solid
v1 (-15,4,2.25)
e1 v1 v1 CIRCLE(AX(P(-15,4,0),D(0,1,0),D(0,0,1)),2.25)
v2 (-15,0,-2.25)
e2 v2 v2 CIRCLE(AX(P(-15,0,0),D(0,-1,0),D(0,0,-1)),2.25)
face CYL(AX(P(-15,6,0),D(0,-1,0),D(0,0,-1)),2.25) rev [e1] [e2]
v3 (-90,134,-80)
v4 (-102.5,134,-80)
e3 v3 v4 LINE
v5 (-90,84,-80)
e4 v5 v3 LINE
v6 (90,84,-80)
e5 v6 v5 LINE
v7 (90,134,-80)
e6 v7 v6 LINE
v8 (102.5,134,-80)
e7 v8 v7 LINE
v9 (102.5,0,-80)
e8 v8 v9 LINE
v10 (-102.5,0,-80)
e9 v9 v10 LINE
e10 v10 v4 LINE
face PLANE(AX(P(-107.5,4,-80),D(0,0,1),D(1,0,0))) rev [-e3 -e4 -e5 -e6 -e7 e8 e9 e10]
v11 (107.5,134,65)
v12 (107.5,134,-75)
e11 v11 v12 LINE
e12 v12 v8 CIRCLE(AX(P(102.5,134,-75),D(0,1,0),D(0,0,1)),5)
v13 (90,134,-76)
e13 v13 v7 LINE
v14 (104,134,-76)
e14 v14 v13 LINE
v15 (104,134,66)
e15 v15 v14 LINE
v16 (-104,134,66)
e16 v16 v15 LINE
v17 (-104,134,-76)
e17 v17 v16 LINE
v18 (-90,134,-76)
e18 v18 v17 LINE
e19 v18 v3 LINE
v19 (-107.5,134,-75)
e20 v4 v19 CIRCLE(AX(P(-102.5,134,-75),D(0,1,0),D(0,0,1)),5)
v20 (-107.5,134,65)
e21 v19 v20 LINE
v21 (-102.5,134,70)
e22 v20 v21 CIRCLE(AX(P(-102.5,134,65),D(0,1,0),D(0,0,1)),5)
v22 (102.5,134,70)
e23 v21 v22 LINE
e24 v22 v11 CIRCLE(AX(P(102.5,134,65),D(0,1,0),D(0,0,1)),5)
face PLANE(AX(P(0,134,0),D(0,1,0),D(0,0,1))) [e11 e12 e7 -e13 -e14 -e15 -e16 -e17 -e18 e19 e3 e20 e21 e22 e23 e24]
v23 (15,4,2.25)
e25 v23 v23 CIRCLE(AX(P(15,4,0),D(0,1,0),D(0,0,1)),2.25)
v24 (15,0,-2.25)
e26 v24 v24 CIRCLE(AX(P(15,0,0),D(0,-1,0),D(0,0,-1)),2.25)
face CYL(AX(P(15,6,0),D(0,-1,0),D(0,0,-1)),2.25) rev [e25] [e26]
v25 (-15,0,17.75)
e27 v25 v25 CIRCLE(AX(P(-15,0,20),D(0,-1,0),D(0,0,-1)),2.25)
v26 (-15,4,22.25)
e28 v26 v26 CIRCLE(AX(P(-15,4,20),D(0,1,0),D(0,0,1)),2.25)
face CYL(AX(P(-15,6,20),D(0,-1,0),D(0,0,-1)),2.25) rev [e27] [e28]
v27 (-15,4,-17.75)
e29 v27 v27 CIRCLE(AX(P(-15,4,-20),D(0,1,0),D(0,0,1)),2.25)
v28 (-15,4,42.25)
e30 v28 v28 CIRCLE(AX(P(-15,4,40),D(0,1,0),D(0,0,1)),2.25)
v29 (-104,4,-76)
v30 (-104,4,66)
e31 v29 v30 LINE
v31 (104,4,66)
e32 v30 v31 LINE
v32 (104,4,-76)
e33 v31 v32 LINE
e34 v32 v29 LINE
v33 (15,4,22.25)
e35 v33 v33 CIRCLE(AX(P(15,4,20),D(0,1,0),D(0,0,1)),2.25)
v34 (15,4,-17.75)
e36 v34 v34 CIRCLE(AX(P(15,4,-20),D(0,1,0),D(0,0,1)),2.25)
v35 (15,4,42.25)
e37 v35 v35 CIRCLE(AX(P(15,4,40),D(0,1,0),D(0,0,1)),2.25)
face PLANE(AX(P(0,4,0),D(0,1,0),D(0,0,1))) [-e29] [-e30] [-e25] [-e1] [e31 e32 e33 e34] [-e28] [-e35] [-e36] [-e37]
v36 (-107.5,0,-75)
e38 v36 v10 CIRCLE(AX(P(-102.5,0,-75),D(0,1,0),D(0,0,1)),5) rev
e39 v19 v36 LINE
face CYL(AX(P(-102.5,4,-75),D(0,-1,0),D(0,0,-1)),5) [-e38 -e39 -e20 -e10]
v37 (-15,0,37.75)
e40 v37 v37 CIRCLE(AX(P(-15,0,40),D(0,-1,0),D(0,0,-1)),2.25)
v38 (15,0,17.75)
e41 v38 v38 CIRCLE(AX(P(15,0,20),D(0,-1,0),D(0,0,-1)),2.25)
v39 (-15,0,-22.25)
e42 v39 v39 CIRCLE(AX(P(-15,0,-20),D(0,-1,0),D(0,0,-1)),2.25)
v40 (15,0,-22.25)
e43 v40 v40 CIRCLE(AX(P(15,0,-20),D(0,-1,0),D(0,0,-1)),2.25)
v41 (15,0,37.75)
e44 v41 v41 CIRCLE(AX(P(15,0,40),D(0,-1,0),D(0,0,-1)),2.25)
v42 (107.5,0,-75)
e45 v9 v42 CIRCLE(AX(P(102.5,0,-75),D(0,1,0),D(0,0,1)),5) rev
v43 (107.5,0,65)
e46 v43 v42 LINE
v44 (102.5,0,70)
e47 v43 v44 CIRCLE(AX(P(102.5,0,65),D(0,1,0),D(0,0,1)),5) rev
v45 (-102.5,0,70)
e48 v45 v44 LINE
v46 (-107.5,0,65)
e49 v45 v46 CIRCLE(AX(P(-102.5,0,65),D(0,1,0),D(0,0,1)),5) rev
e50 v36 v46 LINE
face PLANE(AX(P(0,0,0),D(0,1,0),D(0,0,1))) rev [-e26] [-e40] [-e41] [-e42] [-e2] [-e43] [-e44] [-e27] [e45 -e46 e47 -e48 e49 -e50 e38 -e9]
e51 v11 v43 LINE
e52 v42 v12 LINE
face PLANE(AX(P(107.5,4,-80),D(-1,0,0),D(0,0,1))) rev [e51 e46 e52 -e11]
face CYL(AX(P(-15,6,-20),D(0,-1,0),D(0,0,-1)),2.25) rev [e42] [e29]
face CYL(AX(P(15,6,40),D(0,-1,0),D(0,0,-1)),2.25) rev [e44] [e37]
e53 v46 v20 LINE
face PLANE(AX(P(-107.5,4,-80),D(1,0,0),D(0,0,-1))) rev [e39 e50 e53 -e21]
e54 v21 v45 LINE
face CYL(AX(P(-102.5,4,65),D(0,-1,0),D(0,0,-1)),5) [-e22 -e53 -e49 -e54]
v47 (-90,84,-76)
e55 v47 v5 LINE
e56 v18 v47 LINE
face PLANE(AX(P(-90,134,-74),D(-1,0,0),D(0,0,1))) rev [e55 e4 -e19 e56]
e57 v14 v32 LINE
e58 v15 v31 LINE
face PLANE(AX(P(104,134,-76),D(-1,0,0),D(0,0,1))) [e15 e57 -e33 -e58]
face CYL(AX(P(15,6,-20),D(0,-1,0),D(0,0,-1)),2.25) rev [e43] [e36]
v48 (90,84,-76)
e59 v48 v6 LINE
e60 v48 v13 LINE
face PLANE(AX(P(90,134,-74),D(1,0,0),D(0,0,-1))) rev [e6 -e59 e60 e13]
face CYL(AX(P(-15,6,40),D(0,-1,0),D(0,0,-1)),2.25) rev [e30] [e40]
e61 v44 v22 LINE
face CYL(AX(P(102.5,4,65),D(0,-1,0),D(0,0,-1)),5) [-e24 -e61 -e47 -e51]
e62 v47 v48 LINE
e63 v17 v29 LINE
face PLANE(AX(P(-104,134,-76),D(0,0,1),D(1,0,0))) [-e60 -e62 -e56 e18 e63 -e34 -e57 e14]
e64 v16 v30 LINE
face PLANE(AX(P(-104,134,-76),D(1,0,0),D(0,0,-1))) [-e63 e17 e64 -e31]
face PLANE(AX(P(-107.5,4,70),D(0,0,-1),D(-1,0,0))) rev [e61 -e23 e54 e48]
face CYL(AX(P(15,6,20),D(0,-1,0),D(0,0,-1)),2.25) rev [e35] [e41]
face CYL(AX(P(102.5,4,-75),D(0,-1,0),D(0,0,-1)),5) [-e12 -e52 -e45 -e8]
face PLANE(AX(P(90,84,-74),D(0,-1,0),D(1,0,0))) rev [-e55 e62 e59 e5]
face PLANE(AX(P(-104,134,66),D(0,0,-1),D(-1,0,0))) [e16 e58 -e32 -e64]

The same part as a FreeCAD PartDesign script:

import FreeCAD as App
import Part
import Sketcher
Q = App.Units.Quantity


def edges_at(feature, points):
    """Names of the edges that pass closest to the given points."""
    edges = feature.Shape.Edges
    near = lambda p: min(range(len(edges)), key=lambda i: edges[i].distToShape(Part.Vertex(*p))[0])
    return sorted({f"Edge{near(p) + 1}" for p in points})


def add_polygon(sketch, points):
    """Adds a closed chain of lines whose ends are joined by coincident constraints."""
    first, n = sketch.GeometryCount, len(points)
    for a, b in zip(points, points[1:] + points[:1]):
        sketch.addGeometry(Part.LineSegment(App.Vector(*a, 0), App.Vector(*b, 0)), False)
    for i in range(n):
        sketch.addConstraint(Sketcher.Constraint("Coincident", first + i, 2, first + (i + 1) % n, 1))

doc = App.newDocument("Part")
body = doc.addObject("PartDesign::Body", "Body")

sketch1 = body.newObject("Sketcher::SketchObject", "Sketch")
sketch1.AttachmentSupport = (doc.getObject("XZ_Plane"), [""])
sketch1.MapMode = "FlatFace"
add_polygon(sketch1, [(-108, -80), (-108, 70), (108, 70), (108, -80)])
sketch1.addConstraint([
    Sketcher.Constraint("Vertical", 0),
    Sketcher.Constraint("Horizontal", 1),
    Sketcher.Constraint("Vertical", 2),
    Sketcher.Constraint("Horizontal", 3),
    Sketcher.Constraint("DistanceX", 1, 1, 1, 2, Q("215 mm")),
    Sketcher.Constraint("DistanceY", 0, 1, 0, 2, Q("150 mm")),
    Sketcher.Constraint("DistanceY", -1, 1, 0, 2, Q("70 mm")),
    Sketcher.Constraint("DistanceX", 0, 2, -1, 1, Q("107.5 mm")),
])
pad1 = body.newObject("PartDesign::Pad", "Pad")
pad1.Profile = sketch1
pad1.Length = 4
pad1.Reversed = True

sketch2 = body.newObject("Sketcher::SketchObject", "Sketch001")
sketch2.AttachmentSupport = (doc.getObject("XZ_Plane"), [""])
sketch2.MapMode = "FlatFace"
sketch2.AttachmentOffset = App.Placement(App.Vector(0, 0, -4), App.Rotation())
add_polygon(sketch2, [(-108, -80), (-108, 70), (108, 70), (108, -80)])
add_polygon(sketch2, [(104, 66), (-104, 66), (-104, -76), (104, -76)])
sketch2.addConstraint([
    Sketcher.Constraint("Vertical", 0),
    Sketcher.Constraint("Horizontal", 1),
    Sketcher.Constraint("Vertical", 2),
    Sketcher.Constraint("Horizontal", 3),
    Sketcher.Constraint("Horizontal", 4),
    Sketcher.Constraint("Vertical", 5),
    Sketcher.Constraint("Horizontal", 6),
    Sketcher.Constraint("Vertical", 7),
    Sketcher.Constraint("DistanceX", 1, 1, 1, 2, Q("215 mm")),
    Sketcher.Constraint("DistanceX", 4, 2, 4, 1, Q("208 mm")),
    Sketcher.Constraint("DistanceY", 0, 1, 0, 2, Q("150 mm")),
    Sketcher.Constraint("DistanceY", 5, 2, 5, 1, Q("142 mm")),
    Sketcher.Constraint("DistanceY", -1, 1, 0, 2, Q("70 mm")),
    Sketcher.Constraint("DistanceX", 4, 2, -1, 1, Q("104 mm")),
    Sketcher.Constraint("DistanceY", -1, 1, 4, 2, Q("66 mm")),
    Sketcher.Constraint("DistanceX", 0, 2, -1, 1, Q("107.5 mm")),
])
pad2 = body.newObject("PartDesign::Pad", "Pad001")
pad2.Profile = sketch2
pad2.Length = 130
pad2.Reversed = True

sketch3 = body.newObject("Sketcher::SketchObject", "Sketch002")
sketch3.AttachmentSupport = (doc.getObject("XY_Plane"), [""])
sketch3.MapMode = "FlatFace"
sketch3.AttachmentOffset = App.Placement(App.Vector(0, 0, -80), App.Rotation())
add_polygon(sketch3, [(90, 134), (90, 84), (-90, 84), (-90, 134)])
sketch3.addConstraint([
    Sketcher.Constraint("Vertical", 0),
    Sketcher.Constraint("Horizontal", 1),
    Sketcher.Constraint("Vertical", 2),
    Sketcher.Constraint("Horizontal", 3),
    Sketcher.Constraint("DistanceX", 1, 2, 1, 1, Q("180 mm")),
    Sketcher.Constraint("DistanceY", 0, 2, 0, 1, Q("50 mm")),
    Sketcher.Constraint("DistanceX", -1, 1, 0, 2, Q("90 mm")),
    Sketcher.Constraint("DistanceY", -1, 1, 0, 2, Q("84 mm")),
])
pocket1 = body.newObject("PartDesign::Pocket", "Pocket")
pocket1.Profile = sketch3
pocket1.Length = 6
pocket1.Reversed = True
doc.recompute()

fillet = body.newObject("PartDesign::Fillet", "Fillet")
fillet.Base = (pocket1, edges_at(pocket1, [(-107.5, 67, -80)]))
fillet.Radius = 5
doc.recompute()

fillet2 = body.newObject("PartDesign::Fillet", "Fillet001")
fillet2.Base = (fillet, edges_at(fillet, [(107.5, 67, -80)]))
fillet2.Radius = 5
doc.recompute()

fillet3 = body.newObject("PartDesign::Fillet", "Fillet002")
fillet3.Base = (fillet2, edges_at(fillet2, [(-107.5, 67, 70)]))
fillet3.Radius = 5
doc.recompute()

fillet4 = body.newObject("PartDesign::Fillet", "Fillet003")
fillet4.Base = (fillet3, edges_at(fillet3, [(107.5, 67, 70)]))
fillet4.Radius = 5

sketch4 = body.newObject("Sketcher::SketchObject", "Sketch003")
sketch4.AttachmentSupport = (doc.getObject("XZ_Plane"), [""])
sketch4.MapMode = "FlatFace"
sketch4.addGeometry([
    Part.Circle(App.Vector(-15, 20, 0), App.Vector(0, 0, 1), 2.2),
    Part.Circle(App.Vector(15, 40, 0), App.Vector(0, 0, 1), 2.2),
    Part.Circle(App.Vector(-15, 0, 0), App.Vector(0, 0, 1), 2.2),
    Part.Circle(App.Vector(15, 20, 0), App.Vector(0, 0, 1), 2.2),
    Part.Circle(App.Vector(-15, -20, 0), App.Vector(0, 0, 1), 2.2),
    Part.Circle(App.Vector(15, -20, 0), App.Vector(0, 0, 1), 2.2),
    Part.Circle(App.Vector(-15, 40, 0), App.Vector(0, 0, 1), 2.2),
    Part.Circle(App.Vector(15, 0, 0), App.Vector(0, 0, 1), 2.2),
], False)
sketch4.addConstraint([
    Sketcher.Constraint("Equal", 0, 1),
    Sketcher.Constraint("Equal", 1, 2),
    Sketcher.Constraint("Equal", 2, 3),
    Sketcher.Constraint("Equal", 3, 4),
    Sketcher.Constraint("Equal", 4, 5),
    Sketcher.Constraint("Equal", 5, 6),
    Sketcher.Constraint("Equal", 6, 7),
    Sketcher.Constraint("Symmetric", 3, 3, 4, 3, -1, 1),
    Sketcher.Constraint("Symmetric", 0, 3, 5, 3, -1, 1),
    Sketcher.Constraint("Symmetric", 2, 3, 7, 3, -1, 1),
    Sketcher.Constraint("Symmetric", 0, 3, 3, 3, -2),
    Sketcher.Constraint("Symmetric", 1, 3, 6, 3, -2),
    Sketcher.Constraint("PointOnObject", 2, 3, -1),
    Sketcher.Constraint("Vertical", 0, 3, 2, 3),
    Sketcher.Constraint("Vertical", 1, 3, 3, 3),
    Sketcher.Constraint("Diameter", 0, Q("4.5 mm")),
    Sketcher.Constraint("DistanceX", 0, 3, -1, 1, Q("15 mm")),
    Sketcher.Constraint("DistanceY", -1, 1, 0, 3, Q("20 mm")),
    Sketcher.Constraint("DistanceY", -1, 1, 1, 3, Q("40 mm")),
])
pocket2 = body.newObject("PartDesign::Pocket", "Pocket001")
pocket2.Profile = sketch4
pocket2.Length = 6

doc.recompute()
